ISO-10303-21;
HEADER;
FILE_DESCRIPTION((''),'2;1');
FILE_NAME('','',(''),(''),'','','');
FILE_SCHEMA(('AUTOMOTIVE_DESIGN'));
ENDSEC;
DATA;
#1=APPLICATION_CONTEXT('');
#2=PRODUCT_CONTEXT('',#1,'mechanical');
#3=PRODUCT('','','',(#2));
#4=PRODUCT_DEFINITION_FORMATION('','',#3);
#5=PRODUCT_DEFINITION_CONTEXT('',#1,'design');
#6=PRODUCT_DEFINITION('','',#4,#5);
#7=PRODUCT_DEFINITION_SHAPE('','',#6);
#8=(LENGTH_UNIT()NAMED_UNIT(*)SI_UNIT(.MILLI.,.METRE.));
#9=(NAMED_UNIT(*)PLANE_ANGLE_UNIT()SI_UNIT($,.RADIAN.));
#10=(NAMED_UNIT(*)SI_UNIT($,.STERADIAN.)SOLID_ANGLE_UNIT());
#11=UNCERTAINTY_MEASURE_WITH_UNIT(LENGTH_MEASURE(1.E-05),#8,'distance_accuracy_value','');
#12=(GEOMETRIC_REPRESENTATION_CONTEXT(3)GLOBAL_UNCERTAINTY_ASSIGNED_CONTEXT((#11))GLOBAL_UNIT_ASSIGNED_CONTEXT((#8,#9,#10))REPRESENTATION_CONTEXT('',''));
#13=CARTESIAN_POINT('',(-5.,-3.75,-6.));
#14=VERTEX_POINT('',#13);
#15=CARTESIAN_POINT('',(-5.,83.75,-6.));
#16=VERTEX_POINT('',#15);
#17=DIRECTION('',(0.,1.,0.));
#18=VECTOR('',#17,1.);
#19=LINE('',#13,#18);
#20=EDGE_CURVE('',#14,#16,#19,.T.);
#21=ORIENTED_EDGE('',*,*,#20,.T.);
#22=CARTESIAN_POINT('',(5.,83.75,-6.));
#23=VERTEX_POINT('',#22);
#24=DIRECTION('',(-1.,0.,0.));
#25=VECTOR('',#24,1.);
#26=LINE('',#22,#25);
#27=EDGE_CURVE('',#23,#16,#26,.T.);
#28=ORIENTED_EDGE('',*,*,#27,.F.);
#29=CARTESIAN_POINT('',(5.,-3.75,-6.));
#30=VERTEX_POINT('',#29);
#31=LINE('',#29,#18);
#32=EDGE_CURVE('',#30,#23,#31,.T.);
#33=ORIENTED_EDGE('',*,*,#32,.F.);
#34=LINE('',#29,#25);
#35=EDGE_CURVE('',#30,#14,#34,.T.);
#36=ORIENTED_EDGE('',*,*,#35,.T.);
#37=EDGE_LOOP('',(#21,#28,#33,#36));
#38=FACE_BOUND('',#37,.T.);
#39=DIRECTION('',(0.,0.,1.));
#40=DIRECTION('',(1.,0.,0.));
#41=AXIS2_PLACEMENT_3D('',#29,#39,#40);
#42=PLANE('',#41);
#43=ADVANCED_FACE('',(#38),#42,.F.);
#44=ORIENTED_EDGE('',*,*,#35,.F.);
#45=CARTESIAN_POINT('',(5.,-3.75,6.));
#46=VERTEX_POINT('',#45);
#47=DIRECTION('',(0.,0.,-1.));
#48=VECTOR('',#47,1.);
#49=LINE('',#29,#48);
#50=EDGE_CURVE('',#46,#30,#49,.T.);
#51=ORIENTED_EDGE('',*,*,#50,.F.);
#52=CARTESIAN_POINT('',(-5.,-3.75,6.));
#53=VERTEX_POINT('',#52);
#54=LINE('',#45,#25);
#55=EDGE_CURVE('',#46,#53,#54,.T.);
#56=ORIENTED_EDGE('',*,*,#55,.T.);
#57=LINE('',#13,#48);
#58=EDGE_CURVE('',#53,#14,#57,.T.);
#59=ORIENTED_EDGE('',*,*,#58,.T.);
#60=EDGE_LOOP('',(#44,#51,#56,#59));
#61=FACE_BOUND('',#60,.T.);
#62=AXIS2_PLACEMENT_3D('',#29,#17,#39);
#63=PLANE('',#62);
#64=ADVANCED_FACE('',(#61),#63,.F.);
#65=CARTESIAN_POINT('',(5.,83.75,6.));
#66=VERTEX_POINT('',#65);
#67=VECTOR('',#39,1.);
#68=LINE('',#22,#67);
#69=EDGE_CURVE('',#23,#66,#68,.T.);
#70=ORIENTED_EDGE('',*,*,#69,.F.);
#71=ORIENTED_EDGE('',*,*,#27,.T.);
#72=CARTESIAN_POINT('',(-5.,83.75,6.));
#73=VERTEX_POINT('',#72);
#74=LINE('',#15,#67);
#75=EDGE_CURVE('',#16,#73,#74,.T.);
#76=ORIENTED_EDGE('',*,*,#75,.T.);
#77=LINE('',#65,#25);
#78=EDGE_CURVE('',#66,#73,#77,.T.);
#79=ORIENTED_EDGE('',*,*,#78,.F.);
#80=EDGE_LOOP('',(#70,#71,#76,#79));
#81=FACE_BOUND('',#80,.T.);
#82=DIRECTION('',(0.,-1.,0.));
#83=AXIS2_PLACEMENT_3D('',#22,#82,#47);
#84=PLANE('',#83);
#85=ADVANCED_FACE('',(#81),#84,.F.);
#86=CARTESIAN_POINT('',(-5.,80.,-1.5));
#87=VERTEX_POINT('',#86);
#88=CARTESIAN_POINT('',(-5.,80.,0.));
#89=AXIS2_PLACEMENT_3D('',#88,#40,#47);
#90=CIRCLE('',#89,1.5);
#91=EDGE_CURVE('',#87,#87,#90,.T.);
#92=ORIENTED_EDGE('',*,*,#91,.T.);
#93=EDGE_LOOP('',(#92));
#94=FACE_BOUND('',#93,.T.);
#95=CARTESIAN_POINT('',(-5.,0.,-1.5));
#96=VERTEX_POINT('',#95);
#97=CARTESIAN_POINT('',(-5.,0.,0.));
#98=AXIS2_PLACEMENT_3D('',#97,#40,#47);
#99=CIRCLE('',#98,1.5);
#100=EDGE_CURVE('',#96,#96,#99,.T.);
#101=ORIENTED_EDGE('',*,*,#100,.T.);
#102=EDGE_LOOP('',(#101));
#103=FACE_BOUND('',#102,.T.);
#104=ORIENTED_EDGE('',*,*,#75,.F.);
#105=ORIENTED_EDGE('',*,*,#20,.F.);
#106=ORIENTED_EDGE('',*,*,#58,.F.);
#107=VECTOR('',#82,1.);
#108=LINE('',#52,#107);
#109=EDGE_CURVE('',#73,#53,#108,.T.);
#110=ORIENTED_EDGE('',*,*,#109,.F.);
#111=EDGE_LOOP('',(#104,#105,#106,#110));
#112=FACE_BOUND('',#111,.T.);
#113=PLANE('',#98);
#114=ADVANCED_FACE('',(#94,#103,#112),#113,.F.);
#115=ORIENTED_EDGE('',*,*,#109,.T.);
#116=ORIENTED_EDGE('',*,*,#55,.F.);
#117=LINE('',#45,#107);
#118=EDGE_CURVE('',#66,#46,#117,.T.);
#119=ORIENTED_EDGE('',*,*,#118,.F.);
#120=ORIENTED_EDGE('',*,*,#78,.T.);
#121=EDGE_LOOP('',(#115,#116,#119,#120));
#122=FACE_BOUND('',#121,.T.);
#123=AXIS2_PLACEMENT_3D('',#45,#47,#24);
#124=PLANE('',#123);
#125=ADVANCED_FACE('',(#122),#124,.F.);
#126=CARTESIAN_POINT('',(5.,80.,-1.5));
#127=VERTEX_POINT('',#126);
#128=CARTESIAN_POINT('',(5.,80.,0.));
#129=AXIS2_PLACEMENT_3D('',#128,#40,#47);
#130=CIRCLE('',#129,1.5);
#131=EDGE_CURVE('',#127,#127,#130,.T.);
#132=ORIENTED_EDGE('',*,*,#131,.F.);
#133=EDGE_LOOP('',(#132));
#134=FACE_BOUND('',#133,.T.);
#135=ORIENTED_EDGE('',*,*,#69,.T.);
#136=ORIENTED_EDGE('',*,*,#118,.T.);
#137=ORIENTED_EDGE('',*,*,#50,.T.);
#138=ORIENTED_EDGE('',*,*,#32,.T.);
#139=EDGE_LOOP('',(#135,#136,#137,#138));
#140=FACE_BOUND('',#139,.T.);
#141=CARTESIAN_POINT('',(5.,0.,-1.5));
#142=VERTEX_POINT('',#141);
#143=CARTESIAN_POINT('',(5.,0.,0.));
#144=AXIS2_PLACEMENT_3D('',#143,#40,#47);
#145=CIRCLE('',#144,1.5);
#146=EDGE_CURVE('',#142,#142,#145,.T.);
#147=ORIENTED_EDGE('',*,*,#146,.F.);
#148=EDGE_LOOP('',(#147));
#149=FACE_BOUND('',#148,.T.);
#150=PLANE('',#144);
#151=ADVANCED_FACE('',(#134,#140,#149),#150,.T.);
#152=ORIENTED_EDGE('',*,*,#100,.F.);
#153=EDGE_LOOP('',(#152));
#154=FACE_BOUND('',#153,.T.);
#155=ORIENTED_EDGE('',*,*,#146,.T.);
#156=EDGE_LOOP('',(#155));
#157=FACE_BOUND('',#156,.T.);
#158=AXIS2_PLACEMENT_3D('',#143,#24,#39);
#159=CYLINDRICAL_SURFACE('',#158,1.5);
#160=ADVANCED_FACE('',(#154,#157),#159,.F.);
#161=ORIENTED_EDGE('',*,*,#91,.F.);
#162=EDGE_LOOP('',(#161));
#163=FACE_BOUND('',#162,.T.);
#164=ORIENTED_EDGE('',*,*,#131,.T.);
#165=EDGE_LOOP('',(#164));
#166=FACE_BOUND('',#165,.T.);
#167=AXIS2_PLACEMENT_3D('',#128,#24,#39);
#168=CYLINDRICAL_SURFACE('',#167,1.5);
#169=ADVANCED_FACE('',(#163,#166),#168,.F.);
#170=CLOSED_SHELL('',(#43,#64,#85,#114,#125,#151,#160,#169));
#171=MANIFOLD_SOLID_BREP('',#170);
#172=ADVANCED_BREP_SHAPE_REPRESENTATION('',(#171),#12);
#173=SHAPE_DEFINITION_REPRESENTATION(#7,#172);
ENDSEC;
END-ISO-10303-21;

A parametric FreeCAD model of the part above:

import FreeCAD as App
import Part
import Sketcher

V = App.Vector

doc = App.newDocument("Part")
body = doc.addObject("PartDesign::Body", "Body")

# Sketch on YZ plane
sketch1 = doc.addObject("Sketcher::SketchObject", "Sketch")
body.addObject(sketch1)
sketch1.AttachmentSupport = (doc.YZ_Plane, [""])
sketch1.MapMode = "FlatFace"
sketch1.addGeometry([
    Part.LineSegment(V(83.8, 6, 0), V(-3.8, 6, 0)),  # 0
    Part.LineSegment(V(-3.8, 6, 0), V(-3.8, -6, 0)),  # 1
    Part.LineSegment(V(-3.8, -6, 0), V(83.8, -6, 0)),  # 2
    Part.LineSegment(V(83.8, -6, 0), V(83.8, 6, 0)),  # 3
    Part.Circle(V(0, 0, 0), V(0, 0, 1), 1.5),  # 4
    Part.Circle(V(80, 0, 0), V(0, 0, 1), 1.5),  # 5
], False)
sketch1.addConstraint([
    Sketcher.Constraint("Coincident", 0, 2, 1, 1),
    Sketcher.Constraint("Coincident", 1, 2, 2, 1),
    Sketcher.Constraint("Coincident", 2, 2, 3, 1),
    Sketcher.Constraint("Coincident", 3, 2, 0, 1),
    Sketcher.Constraint("Horizontal", 0),
    Sketcher.Constraint("Vertical", 1),
    Sketcher.Constraint("Horizontal", 2),
    Sketcher.Constraint("Vertical", 3),
    Sketcher.Constraint("Coincident", 4, 3, -1, 1),
    Sketcher.Constraint("Equal", 4, 5),
    Sketcher.Constraint("PointOnObject", 5, 3, -1),
    Sketcher.Constraint("Diameter", 4, 3.0),
    Sketcher.Constraint("DistanceY", 1, 2, 1, 1, 12.0),
    Sketcher.Constraint("DistanceX", 0, 2, 0, 1, 87.5),
    Sketcher.Constraint("DistanceX", -1, 1, 5, 3, 80.0),
    Sketcher.Constraint("DistanceY", -1, 1, 0, 2, 6.0),
    Sketcher.Constraint("DistanceX", 0, 2, -1, 1, 3.75),
])
pad1 = doc.addObject("PartDesign::Pad", "Pad")
body.addObject(pad1)
pad1.Profile = sketch1
pad1.Length = 10
pad1.Midplane = True

doc.recompute()
